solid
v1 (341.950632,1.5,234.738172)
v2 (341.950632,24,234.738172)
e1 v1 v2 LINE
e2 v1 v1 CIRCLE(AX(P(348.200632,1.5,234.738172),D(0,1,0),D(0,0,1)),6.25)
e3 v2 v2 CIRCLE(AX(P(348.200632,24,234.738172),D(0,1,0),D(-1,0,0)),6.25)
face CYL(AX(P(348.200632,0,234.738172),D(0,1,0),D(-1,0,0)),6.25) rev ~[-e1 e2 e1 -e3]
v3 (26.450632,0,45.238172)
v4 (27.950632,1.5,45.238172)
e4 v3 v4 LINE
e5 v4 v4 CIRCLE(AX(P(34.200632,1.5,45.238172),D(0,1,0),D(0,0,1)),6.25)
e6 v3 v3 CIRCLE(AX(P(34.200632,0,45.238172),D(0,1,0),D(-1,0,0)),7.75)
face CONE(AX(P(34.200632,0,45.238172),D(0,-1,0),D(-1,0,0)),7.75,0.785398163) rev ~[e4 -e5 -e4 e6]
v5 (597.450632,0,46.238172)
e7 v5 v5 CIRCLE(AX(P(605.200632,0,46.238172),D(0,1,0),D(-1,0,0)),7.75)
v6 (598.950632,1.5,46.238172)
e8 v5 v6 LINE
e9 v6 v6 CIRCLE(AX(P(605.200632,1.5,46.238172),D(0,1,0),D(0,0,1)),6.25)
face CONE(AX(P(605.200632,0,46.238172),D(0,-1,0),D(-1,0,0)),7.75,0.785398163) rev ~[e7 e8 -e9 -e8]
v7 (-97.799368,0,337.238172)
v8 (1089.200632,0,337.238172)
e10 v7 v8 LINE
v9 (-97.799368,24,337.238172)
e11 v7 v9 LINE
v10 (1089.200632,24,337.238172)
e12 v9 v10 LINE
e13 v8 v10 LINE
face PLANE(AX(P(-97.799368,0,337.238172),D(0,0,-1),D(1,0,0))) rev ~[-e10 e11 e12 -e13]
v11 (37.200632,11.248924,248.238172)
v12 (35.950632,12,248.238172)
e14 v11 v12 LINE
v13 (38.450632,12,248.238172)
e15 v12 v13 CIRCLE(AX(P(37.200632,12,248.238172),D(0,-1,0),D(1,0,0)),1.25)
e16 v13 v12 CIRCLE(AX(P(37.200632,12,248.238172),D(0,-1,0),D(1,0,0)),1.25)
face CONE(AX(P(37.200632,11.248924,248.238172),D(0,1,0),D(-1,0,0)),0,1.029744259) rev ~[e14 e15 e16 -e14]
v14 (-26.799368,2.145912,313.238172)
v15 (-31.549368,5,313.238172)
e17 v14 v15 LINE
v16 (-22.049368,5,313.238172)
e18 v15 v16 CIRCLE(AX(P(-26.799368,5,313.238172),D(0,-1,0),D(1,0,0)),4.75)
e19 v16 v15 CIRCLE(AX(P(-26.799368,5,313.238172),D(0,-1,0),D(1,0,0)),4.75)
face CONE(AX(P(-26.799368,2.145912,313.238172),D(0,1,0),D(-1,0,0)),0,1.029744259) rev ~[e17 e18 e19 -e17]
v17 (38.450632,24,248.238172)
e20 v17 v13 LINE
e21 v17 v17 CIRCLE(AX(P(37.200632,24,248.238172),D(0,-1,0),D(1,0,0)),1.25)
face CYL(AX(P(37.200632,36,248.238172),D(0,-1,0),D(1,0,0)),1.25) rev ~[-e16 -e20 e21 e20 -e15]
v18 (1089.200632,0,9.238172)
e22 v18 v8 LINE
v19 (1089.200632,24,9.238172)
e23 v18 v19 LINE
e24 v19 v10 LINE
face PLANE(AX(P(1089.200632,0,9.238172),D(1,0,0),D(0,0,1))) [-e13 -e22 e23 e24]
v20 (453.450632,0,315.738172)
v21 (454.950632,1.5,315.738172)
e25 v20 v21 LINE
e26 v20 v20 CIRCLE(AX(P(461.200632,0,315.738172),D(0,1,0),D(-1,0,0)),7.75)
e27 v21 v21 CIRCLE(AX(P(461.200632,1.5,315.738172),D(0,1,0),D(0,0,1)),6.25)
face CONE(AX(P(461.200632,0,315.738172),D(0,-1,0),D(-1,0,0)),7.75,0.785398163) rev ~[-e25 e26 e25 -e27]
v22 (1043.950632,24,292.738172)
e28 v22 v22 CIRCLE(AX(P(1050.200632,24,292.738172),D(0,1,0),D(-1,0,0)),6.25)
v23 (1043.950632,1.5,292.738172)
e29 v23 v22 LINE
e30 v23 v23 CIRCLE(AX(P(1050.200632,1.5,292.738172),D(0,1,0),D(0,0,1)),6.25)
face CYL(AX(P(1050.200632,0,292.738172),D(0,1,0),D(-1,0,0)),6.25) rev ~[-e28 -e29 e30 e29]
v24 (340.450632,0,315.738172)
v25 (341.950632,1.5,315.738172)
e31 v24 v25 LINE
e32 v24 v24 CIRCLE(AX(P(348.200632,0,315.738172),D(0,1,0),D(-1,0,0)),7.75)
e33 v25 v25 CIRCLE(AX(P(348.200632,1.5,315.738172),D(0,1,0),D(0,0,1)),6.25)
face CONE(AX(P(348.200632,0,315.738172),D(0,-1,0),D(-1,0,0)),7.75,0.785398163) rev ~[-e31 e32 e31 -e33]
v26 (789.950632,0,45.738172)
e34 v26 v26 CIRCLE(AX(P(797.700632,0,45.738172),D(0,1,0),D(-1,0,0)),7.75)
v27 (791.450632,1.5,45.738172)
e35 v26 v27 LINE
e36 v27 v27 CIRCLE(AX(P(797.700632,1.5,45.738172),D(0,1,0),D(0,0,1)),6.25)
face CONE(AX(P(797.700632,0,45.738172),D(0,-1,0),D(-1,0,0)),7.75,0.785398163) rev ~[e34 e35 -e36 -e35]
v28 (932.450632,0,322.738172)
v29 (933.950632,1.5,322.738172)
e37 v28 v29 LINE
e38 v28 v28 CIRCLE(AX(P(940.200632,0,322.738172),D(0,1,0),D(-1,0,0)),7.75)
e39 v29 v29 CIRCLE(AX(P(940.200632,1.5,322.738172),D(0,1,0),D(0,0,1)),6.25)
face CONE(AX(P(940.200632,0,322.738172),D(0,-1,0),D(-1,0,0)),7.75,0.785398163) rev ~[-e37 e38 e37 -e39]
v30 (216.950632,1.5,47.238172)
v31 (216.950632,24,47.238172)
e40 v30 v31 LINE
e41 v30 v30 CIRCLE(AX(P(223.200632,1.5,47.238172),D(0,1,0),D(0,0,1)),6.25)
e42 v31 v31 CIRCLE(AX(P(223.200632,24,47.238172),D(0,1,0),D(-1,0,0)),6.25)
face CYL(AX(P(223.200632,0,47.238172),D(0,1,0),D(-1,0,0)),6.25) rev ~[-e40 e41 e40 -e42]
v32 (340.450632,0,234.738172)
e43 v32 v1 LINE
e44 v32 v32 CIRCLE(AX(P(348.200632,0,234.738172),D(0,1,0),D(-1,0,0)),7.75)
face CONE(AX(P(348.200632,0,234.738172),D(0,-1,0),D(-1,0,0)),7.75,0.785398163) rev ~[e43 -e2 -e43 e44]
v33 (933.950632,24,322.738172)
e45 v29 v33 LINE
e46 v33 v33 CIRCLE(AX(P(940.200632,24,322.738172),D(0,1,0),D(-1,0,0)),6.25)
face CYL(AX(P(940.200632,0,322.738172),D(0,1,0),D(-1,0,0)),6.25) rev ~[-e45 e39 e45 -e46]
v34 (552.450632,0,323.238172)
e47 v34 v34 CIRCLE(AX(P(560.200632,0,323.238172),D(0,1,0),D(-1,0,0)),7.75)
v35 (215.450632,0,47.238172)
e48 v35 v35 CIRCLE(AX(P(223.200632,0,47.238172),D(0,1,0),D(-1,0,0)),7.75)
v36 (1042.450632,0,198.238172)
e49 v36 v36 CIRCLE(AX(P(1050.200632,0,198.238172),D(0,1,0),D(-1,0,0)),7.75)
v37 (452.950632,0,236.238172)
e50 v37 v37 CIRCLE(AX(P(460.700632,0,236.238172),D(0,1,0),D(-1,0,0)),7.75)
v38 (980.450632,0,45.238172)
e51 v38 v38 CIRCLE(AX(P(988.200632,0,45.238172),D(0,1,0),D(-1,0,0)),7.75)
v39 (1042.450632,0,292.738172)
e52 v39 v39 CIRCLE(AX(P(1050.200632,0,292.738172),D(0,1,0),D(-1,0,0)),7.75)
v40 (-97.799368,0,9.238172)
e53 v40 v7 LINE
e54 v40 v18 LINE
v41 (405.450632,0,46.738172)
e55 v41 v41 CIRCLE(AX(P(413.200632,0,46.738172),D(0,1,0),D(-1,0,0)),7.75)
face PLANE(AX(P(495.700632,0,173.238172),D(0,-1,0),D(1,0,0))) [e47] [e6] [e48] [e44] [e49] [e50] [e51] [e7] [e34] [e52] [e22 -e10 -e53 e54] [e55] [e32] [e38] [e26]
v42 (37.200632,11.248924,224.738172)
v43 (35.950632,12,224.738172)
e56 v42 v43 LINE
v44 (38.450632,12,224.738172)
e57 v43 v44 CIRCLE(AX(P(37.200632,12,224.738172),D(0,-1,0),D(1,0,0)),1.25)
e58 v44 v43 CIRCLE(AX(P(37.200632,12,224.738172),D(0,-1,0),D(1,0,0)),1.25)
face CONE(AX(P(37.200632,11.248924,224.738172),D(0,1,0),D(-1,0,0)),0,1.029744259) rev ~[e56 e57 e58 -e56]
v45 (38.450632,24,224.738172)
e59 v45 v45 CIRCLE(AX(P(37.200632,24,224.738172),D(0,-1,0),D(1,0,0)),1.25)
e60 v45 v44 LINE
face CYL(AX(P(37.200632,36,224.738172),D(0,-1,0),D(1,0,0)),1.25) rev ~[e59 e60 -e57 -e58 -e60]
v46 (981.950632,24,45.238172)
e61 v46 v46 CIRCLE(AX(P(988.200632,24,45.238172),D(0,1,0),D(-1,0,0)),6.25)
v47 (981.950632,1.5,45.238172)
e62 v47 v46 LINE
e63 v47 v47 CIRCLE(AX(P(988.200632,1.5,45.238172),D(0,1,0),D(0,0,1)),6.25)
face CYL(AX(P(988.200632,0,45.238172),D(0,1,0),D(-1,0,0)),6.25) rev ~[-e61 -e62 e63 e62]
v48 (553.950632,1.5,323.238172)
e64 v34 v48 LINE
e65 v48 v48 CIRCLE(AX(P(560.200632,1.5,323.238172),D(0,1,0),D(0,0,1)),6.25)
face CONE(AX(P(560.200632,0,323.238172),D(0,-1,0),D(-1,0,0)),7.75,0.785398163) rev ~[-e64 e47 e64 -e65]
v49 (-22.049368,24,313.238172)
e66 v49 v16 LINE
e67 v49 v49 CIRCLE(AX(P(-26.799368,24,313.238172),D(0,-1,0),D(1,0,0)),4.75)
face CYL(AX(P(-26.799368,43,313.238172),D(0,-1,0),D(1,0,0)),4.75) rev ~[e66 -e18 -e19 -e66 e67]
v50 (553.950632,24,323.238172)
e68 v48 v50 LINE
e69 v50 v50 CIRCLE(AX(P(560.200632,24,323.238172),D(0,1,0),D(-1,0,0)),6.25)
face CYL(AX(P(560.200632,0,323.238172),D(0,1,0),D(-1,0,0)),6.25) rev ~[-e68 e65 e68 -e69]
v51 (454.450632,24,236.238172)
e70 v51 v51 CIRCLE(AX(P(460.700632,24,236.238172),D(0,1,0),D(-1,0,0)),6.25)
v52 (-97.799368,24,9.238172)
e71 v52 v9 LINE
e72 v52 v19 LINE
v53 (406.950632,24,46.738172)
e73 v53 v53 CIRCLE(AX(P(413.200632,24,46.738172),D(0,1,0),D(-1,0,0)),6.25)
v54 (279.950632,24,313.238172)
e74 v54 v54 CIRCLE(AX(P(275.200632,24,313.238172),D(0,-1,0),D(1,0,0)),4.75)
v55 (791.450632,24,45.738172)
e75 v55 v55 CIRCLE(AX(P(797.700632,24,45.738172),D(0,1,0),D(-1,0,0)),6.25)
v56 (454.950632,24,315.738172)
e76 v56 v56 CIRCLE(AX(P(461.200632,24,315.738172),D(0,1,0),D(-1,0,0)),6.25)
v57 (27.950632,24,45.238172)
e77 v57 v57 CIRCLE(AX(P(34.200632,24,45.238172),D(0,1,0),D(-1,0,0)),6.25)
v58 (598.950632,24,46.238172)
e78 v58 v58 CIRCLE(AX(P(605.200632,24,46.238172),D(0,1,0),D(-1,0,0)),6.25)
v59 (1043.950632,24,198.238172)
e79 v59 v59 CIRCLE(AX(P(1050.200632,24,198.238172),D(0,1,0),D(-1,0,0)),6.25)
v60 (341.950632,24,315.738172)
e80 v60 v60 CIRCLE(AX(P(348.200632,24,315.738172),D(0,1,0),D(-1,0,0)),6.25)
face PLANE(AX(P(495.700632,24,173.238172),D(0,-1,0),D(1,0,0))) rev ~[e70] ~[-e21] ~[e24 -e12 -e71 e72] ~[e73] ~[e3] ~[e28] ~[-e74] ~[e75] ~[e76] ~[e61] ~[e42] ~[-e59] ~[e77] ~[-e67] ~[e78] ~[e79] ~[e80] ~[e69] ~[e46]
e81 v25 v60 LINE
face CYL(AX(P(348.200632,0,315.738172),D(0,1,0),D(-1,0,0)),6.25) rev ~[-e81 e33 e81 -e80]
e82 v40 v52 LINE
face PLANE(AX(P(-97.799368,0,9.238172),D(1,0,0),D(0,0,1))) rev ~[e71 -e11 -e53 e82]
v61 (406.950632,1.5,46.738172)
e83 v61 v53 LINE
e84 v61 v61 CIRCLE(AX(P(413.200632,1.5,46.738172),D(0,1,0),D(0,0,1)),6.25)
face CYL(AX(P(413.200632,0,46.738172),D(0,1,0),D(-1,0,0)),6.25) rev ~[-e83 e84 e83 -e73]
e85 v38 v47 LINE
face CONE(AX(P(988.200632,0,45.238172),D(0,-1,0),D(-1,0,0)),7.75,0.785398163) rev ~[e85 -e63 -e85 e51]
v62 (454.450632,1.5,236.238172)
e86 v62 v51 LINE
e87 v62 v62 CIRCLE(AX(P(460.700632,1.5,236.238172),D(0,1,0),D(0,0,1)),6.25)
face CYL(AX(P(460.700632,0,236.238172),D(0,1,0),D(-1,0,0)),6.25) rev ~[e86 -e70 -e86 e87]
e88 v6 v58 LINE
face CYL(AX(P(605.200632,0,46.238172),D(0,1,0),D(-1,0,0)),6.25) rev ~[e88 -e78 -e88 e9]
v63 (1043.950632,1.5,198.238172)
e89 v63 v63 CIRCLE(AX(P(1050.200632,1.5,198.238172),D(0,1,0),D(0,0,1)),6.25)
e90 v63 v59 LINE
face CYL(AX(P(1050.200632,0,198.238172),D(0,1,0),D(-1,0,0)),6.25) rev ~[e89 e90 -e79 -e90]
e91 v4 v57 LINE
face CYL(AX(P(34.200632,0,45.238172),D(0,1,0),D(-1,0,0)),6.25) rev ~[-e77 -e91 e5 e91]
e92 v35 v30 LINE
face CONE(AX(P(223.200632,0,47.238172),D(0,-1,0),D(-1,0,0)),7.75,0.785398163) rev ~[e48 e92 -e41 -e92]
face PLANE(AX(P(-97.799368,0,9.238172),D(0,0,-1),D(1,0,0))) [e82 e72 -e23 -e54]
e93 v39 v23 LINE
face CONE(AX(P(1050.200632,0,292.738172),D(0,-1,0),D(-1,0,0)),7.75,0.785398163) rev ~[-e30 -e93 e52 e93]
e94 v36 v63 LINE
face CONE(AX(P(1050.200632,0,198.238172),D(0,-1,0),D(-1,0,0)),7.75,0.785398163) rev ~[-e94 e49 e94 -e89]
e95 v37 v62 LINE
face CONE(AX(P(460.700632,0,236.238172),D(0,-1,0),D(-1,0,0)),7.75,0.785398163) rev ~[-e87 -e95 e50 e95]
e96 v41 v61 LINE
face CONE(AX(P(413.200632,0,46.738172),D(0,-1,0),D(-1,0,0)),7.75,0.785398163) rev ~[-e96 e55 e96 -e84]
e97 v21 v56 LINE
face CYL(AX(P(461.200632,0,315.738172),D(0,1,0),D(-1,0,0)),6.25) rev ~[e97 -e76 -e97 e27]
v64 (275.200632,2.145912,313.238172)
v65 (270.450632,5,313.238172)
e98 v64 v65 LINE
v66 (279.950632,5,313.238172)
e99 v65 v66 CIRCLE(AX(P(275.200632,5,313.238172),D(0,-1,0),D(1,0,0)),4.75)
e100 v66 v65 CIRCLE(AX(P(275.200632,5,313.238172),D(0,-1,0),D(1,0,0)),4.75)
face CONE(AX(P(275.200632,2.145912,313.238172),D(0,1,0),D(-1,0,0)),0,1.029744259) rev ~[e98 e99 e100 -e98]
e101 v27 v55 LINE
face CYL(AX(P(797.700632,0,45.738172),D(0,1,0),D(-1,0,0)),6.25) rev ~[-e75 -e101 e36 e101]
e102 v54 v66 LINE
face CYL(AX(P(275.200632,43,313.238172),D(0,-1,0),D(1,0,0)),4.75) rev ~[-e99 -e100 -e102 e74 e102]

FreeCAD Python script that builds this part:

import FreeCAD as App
import Part
import Sketcher
from FreeCAD import Vector

doc = App.newDocument("Part")
body = doc.addObject("PartDesign::Body", "Body")

# Sketch on XZ plane
sketch1 = doc.addObject("Sketcher::SketchObject", "Sketch")
body.addObject(sketch1)
sketch1.AttachmentSupport = (doc.XZ_Plane, [""])
sketch1.MapMode = "FlatFace"
sketch1.addGeometry([
    Part.LineSegment(Vector(-98, 337, 0), Vector(-98, 9, 0)),
    Part.LineSegment(Vector(-98, 9, 0), Vector(1089, 9, 0)),
    Part.LineSegment(Vector(1089, 9, 0), Vector(1089, 337, 0)),
    Part.LineSegment(Vector(1089, 337, 0), Vector(-98, 337, 0)),
], False)
sketch1.addConstraint([
    Sketcher.Constraint("Coincident", 0, 2, 1, 1),
    Sketcher.Constraint("Coincident", 1, 2, 2, 1),
    Sketcher.Constraint("Coincident", 2, 2, 3, 1),
    Sketcher.Constraint("Coincident", 3, 2, 0, 1),
    Sketcher.Constraint("Vertical", 0),
    Sketcher.Constraint("Horizontal", 1),
    Sketcher.Constraint("Vertical", 2),
    Sketcher.Constraint("Horizontal", 3),
    Sketcher.Constraint("DistanceX", 1, 1, 1, 2, 1187.0),
    Sketcher.Constraint("DistanceY", 0, 2, 0, 1, 328.0),
    Sketcher.Constraint("DistanceX", 0, 2, -1, 1, 97.799368),
    Sketcher.Constraint("DistanceY", -1, 1, 0, 2, 9.238172),
])
pad1 = doc.addObject("PartDesign::Pad", "Pad")
body.addObject(pad1)
pad1.Profile = sketch1
pad1.Length = 24
pad1.Reversed = True

# Sketch on XZ plane
sketch2 = doc.addObject("Sketcher::SketchObject", "Sketch001")
body.addObject(sketch2)
sketch2.AttachmentSupport = (doc.XZ_Plane, [""])
sketch2.MapMode = "FlatFace"
sketch2.addGeometry([
    Part.Circle(Vector(348, 316, 0), Vector(0, 0, 1), 6),  # 0
    Part.Circle(Vector(461, 316, 0), Vector(0, 0, 1), 6),  # 1
    Part.Circle(Vector(348, 235, 0), Vector(0, 0, 1), 6),  # 2
    Part.Circle(Vector(461, 236, 0), Vector(0, 0, 1), 6),  # 3
    Part.Circle(Vector(560, 323, 0), Vector(0, 0, 1), 6),  # 4
    Part.Circle(Vector(940, 323, 0), Vector(0, 0, 1), 6),  # 5
    Part.Circle(Vector(1050, 293, 0), Vector(0, 0, 1), 6),  # 6
    Part.Circle(Vector(1050, 198, 0), Vector(0, 0, 1), 6),  # 7
    Part.Circle(Vector(988, 45, 0), Vector(0, 0, 1), 6),  # 8
    Part.Circle(Vector(798, 46, 0), Vector(0, 0, 1), 6),  # 9
    Part.Circle(Vector(605, 46, 0), Vector(0, 0, 1), 6),  # 10
    Part.Circle(Vector(413, 47, 0), Vector(0, 0, 1), 6),  # 11
    Part.Circle(Vector(223, 47, 0), Vector(0, 0, 1), 6),  # 12
    Part.Circle(Vector(34, 45, 0), Vector(0, 0, 1), 6),  # 13
], False)
sketch2.addConstraint([
    Sketcher.Constraint("Equal", 0, 1),
    Sketcher.Constraint("Equal", 1, 2),
    Sketcher.Constraint("Equal", 2, 3),
    Sketcher.Constraint("Equal", 3, 4),
    Sketcher.Constraint("Equal", 4, 5),
    Sketcher.Constraint("Equal", 5, 6),
    Sketcher.Constraint("Equal", 6, 7),
    Sketcher.Constraint("Equal", 7, 8),
    Sketcher.Constraint("Equal", 8, 9),
    Sketcher.Constraint("Equal", 9, 10),
    Sketcher.Constraint("Equal", 10, 11),
    Sketcher.Constraint("Equal", 11, 12),
    Sketcher.Constraint("Equal", 12, 13),
    Sketcher.Constraint("Horizontal", 0, 3, 1, 3),
    Sketcher.Constraint("Horizontal", 8, 3, 13, 3),
    Sketcher.Constraint("Vertical", 0, 3, 2, 3),
    Sketcher.Constraint("Vertical", 6, 3, 7, 3),
    Sketcher.Constraint("Diameter", 0, 12.5),
    Sketcher.Constraint("DistanceX", 0, 3, 1, 3, 113.0),
    Sketcher.Constraint("DistanceY", 2, 3, 0, 3, 81.0),
    Sketcher.Constraint("DistanceX", 1, 3, 4, 3, 99.0),
    Sketcher.Constraint("DistanceY", 3, 3, 4, 3, 87.0),
    Sketcher.Constraint("DistanceX", 4, 3, 5, 3, 380.0),
    Sketcher.Constraint("DistanceY", 1, 3, 5, 3, 7.0),
    Sketcher.Constraint("DistanceX", 5, 3, 6, 3, 110.0),
    Sketcher.Constraint("DistanceY", 6, 3, 5, 3, 30.0),
    Sketcher.Constraint("DistanceY", 7, 3, 4, 3, 125.0),
    Sketcher.Constraint("DistanceX", 8, 3, 7, 3, 62.0),
    Sketcher.Constraint("DistanceY", 8, 3, 7, 3, 153.0),
    Sketcher.Constraint("DistanceY", 9, 3, 5, 3, 277.0),
    Sketcher.Constraint("DistanceY", 10, 3, 3, 3, 190.0),
    Sketcher.Constraint("DistanceX", 4, 3, 10, 3, 45.0),
    Sketcher.Constraint("DistanceX", 11, 3, 10, 3, 192.0),
    Sketcher.Constraint("DistanceY", 11, 3, 2, 3, 188.0),
    Sketcher.Constraint("DistanceX", 12, 3, 11, 3, 190.0),
    Sketcher.Constraint("DistanceY", 12, 3, 3, 3, 189.0),
    Sketcher.Constraint("DistanceX", 13, 3, 12, 3, 189.0),
    Sketcher.Constraint("DistanceX", 3, 3, 1, 3, 0.5),
    Sketcher.Constraint("DistanceY", 3, 3, 1, 3, 79.5),
    Sketcher.Constraint("DistanceX", 9, 3, 8, 3, 190.5),
    Sketcher.Constraint("DistanceX", -1, 1, 0, 3, 348.200632),
    Sketcher.Constraint("DistanceY", -1, 1, 0, 3, 315.738172),
])
doc.recompute()
hole = doc.addObject("PartDesign::Hole", "Hole")
body.addObject(hole)
hole.Profile = sketch2
hole.ThreadType = "None"
hole.Diameter = 12.5
hole.DepthType = "ThroughAll"
hole.HoleCutType = "Countersink"
hole.HoleCutDiameter = 15.5
hole.HoleCutCountersinkAngle = 90

# Sketch on XZ plane
sketch3 = doc.addObject("Sketcher::SketchObject", "Sketch002")
body.addObject(sketch3)
sketch3.AttachmentSupport = (doc.XZ_Plane, [""])
sketch3.MapMode = "FlatFace"
sketch3.AttachmentOffset = App.Placement(Vector(0, 0, -24), App.Rotation())
sketch3.addGeometry([
    Part.Circle(Vector(275.2, 313.2, 0), Vector(0, 0, 1), 4.8),
    Part.Circle(Vector(-26.8, 313.2, 0), Vector(0, 0, 1), 4.8),
], False)
sketch3.addConstraint([
    Sketcher.Constraint("Equal", 0, 1),
    Sketcher.Constraint("Horizontal", 0, 3, 1, 3),
    Sketcher.Constraint("Diameter", 0, 9.5),
    Sketcher.Constraint("DistanceX", 1, 3, 0, 3, 302.0),
    Sketcher.Constraint("DistanceX", -1, 1, 0, 3, 275.200632),
    Sketcher.Constraint("DistanceY", -1, 1, 0, 3, 313.238172),
])
doc.recompute()
hole2 = doc.addObject("PartDesign::Hole", "Hole001")
body.addObject(hole2)
hole2.Profile = sketch3
hole2.ThreadType = "None"
hole2.Diameter = 9.5
hole2.DepthType = "Dimension"
hole2.Depth = 19
hole2.DrillPoint = "Angled"
hole2.DrillPointAngle = 118
hole2.Reversed = True

# Sketch on XZ plane
sketch4 = doc.addObject("Sketcher::SketchObject", "Sketch003")
body.addObject(sketch4)
sketch4.AttachmentSupport = (doc.XZ_Plane, [""])
sketch4.MapMode = "FlatFace"
sketch4.AttachmentOffset = App.Placement(Vector(0, 0, -24), App.Rotation())
sketch4.addGeometry([
    Part.Circle(Vector(37.2, 248.2, 0), Vector(0, 0, 1), 1.2),
    Part.Circle(Vector(37.2, 224.7, 0), Vector(0, 0, 1), 1.2),
], False)
sketch4.addConstraint([
    Sketcher.Constraint("Equal", 0, 1),
    Sketcher.Constraint("Vertical", 0, 3, 1, 3),
    Sketcher.Constraint("Diameter", 0, 2.5),
    Sketcher.Constraint("DistanceY", 1, 3, 0, 3, 23.5),
    Sketcher.Constraint("DistanceX", -1, 1, 0, 3, 37.200632),
    Sketcher.Constraint("DistanceY", -1, 1, 0, 3, 248.238172),
])
doc.recompute()
hole3 = doc.addObject("PartDesign::Hole", "Hole002")
body.addObject(hole3)
hole3.Profile = sketch4
hole3.ThreadType = "None"
hole3.Diameter = 2.5
hole3.DepthType = "Dimension"
hole3.Depth = 12
hole3.DrillPoint = "Angled"
hole3.DrillPointAngle = 118
hole3.Reversed = True

doc.recompute()
